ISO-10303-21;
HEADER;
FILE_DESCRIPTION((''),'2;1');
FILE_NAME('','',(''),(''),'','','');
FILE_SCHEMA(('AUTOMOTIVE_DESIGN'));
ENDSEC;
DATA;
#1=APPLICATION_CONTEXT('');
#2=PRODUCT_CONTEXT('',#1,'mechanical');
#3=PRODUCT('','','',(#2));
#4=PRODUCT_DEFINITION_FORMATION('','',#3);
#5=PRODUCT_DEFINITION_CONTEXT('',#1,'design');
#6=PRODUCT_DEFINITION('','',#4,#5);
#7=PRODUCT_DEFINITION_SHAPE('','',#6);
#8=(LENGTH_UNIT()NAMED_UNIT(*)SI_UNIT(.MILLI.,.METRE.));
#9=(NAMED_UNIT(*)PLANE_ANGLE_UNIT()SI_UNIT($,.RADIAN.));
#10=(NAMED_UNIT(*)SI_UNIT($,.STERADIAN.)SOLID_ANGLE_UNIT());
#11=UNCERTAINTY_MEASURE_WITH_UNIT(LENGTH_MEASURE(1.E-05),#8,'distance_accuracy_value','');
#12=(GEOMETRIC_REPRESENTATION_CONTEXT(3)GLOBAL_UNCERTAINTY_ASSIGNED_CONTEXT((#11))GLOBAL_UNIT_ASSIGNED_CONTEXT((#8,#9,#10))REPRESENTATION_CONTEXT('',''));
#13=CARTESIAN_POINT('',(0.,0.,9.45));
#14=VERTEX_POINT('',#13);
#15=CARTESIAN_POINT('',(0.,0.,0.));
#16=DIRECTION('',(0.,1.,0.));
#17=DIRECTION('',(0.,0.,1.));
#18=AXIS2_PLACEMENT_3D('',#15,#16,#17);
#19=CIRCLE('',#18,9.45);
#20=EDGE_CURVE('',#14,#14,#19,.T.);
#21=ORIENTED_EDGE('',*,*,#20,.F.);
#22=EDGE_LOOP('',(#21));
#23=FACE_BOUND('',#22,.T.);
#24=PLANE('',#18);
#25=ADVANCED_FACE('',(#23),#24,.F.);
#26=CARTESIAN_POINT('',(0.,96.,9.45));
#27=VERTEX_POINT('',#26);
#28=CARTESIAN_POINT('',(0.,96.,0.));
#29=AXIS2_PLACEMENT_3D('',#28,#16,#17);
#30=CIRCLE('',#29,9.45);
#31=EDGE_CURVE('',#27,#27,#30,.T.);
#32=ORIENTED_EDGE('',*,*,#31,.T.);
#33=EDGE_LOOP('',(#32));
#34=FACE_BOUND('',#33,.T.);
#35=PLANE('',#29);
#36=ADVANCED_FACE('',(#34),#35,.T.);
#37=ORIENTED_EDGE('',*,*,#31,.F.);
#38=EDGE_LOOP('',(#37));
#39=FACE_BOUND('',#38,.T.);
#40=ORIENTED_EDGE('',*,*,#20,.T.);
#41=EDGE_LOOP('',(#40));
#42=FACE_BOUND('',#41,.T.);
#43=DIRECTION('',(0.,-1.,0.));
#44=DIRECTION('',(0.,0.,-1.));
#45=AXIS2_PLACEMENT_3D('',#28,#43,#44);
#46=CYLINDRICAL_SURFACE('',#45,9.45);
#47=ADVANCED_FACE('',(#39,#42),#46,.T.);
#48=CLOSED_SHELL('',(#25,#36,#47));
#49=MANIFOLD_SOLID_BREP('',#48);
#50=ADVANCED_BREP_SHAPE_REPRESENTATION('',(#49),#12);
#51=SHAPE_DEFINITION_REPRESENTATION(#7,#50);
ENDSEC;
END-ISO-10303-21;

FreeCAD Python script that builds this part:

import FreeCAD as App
import Part
import Sketcher

doc = App.newDocument("Part")
body = doc.addObject("PartDesign::Body", "Body")

sketch1 = body.newObject("Sketcher::SketchObject", "Sketch")
sketch1.AttachmentSupport = (doc.getObject("XZ_Plane"), [""])
sketch1.MapMode = "FlatFace"
sketch1.addGeometry(Part.Circle(App.Vector(0, 0, 0), App.Vector(0, 0, 1), 9), False)
sketch1.addConstraint([
    Sketcher.Constraint("Coincident", 0, 3, -1, 1),
    Sketcher.Constraint("Diameter", 0, 18.9),
])
pad1 = body.newObject("PartDesign::Pad", "Pad")
pad1.Profile = sketch1
pad1.Length = 96
pad1.Reversed = True

doc.recompute()
